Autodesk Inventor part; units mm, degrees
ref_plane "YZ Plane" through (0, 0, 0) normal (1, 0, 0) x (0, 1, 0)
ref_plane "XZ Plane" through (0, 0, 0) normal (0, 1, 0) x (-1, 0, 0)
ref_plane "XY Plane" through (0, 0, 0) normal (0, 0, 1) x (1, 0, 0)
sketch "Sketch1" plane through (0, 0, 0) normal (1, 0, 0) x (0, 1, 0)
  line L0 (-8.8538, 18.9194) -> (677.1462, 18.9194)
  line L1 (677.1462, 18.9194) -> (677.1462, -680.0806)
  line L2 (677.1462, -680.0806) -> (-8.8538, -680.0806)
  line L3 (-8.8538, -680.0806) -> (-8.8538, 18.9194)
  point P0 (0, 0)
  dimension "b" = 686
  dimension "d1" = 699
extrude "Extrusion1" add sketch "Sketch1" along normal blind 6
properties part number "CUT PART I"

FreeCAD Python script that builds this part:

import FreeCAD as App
import Part
import Sketcher
from FreeCAD import Vector
Q = App.Units.Quantity

doc = App.newDocument("Part")
body = doc.addObject("PartDesign::Body", "Body")

# Sketch on YZ plane
sketch1 = doc.addObject("Sketcher::SketchObject", "Sketch")
body.addObject(sketch1)
sketch1.AttachmentSupport = (doc.YZ_Plane, [""])
sketch1.MapMode = "FlatFace"
sketch1.addGeometry(Part.LineSegment(Vector(677, 19, 0), Vector(-9, 19, 0)), False)
sketch1.addGeometry(Part.LineSegment(Vector(-9, 19, 0), Vector(-9, -680, 0)), False)
sketch1.addGeometry(Part.LineSegment(Vector(-9, -680, 0), Vector(677, -680, 0)), False)
sketch1.addGeometry(Part.LineSegment(Vector(677, -680, 0), Vector(677, 19, 0)), False)
sketch1.addConstraint(Sketcher.Constraint("Coincident", 0, 2, 1, 1))
sketch1.addConstraint(Sketcher.Constraint("Coincident", 1, 2, 2, 1))
sketch1.addConstraint(Sketcher.Constraint("Coincident", 2, 2, 3, 1))
sketch1.addConstraint(Sketcher.Constraint("Coincident", 3, 2, 0, 1))
sketch1.addConstraint(Sketcher.Constraint("Horizontal", 0))
sketch1.addConstraint(Sketcher.Constraint("Vertical", 1))
sketch1.addConstraint(Sketcher.Constraint("Horizontal", 2))
sketch1.addConstraint(Sketcher.Constraint("Vertical", 3))
sketch1.addConstraint(Sketcher.Constraint("DistanceX", 0, 2, 0, 1, Q("686 mm")))
sketch1.addConstraint(Sketcher.Constraint("DistanceY", 1, 2, 1, 1, Q("699 mm")))
sketch1.addConstraint(Sketcher.Constraint("DistanceX", 0, 2, -1, 1, Q("8.8538 mm")))
sketch1.addConstraint(Sketcher.Constraint("DistanceY", -1, 1, 0, 2, Q("18.9194 mm")))
pad1 = doc.addObject("PartDesign::Pad", "Pad")
body.addObject(pad1)
pad1.Profile = sketch1
pad1.Length = 6

doc.recompute()
